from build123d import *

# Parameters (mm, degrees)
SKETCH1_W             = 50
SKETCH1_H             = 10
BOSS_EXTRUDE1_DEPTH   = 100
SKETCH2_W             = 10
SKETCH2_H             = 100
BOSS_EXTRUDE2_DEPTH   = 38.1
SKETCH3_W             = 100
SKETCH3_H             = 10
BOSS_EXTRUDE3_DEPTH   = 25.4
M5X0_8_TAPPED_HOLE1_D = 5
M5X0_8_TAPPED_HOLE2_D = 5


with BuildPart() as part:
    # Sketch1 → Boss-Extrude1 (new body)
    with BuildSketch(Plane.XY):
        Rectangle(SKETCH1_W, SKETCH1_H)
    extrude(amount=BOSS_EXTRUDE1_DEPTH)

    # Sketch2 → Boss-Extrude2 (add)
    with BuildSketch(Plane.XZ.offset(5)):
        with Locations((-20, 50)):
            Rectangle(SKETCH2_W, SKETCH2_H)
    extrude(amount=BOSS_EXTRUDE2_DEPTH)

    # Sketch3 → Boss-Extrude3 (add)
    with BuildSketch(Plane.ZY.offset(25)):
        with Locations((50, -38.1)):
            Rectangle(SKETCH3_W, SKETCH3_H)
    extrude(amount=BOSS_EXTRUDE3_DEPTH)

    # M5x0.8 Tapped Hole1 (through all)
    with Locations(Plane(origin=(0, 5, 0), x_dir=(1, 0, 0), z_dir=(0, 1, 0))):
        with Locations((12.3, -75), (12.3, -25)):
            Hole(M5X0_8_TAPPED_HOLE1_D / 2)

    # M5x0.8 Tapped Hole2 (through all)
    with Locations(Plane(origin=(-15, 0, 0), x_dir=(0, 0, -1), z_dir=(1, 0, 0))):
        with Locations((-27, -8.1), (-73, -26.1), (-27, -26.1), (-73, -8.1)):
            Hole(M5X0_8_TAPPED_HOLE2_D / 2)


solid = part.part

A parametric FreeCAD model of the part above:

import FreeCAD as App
import Part
import Sketcher

doc = App.newDocument("Part")
body = doc.addObject("PartDesign::Body", "Body")

# Sketch on XY plane
sketch1 = body.newObject("Sketcher::SketchObject", "Sketch")
sketch1.AttachmentSupport = (doc.getObject("XY_Plane"), [""])
sketch1.MapMode = "FlatFace"
sketch1.addGeometry(Part.LineSegment(App.Vector(-25, 5, 0), App.Vector(-25, -5, 0)), False)
sketch1.addGeometry(Part.LineSegment(App.Vector(-25, -5, 0), App.Vector(25, -5, 0)), False)
sketch1.addGeometry(Part.LineSegment(App.Vector(25, -5, 0), App.Vector(25, 5, 0)), False)
sketch1.addGeometry(Part.LineSegment(App.Vector(25, 5, 0), App.Vector(-25, 5, 0)), False)
sketch1.addConstraint(Sketcher.Constraint("Coincident", 0, 2, 1, 1))
sketch1.addConstraint(Sketcher.Constraint("Coincident", 1, 2, 2, 1))
sketch1.addConstraint(Sketcher.Constraint("Coincident", 2, 2, 3, 1))
sketch1.addConstraint(Sketcher.Constraint("Coincident", 3, 2, 0, 1))
sketch1.addConstraint(Sketcher.Constraint("Vertical", 0))
sketch1.addConstraint(Sketcher.Constraint("Horizontal", 1))
sketch1.addConstraint(Sketcher.Constraint("Vertical", 2))
sketch1.addConstraint(Sketcher.Constraint("Horizontal", 3))
sketch1.addConstraint(Sketcher.Constraint("Symmetric", 0, 2, 2, 2, -1, 1))
sketch1.addConstraint(Sketcher.Constraint("DistanceX", 1, 1, 1, 2, 50.0))
sketch1.addConstraint(Sketcher.Constraint("DistanceY", 0, 2, 0, 1, 10.0))
pad1 = body.newObject("PartDesign::Pad", "Pad")
pad1.Profile = sketch1
pad1.Length = 100

# Sketch on XZ plane
sketch2 = body.newObject("Sketcher::SketchObject", "Sketch001")
sketch2.AttachmentSupport = (doc.getObject("XZ_Plane"), [""])
sketch2.MapMode = "FlatFace"
sketch2.AttachmentOffset = App.Placement(App.Vector(0, 0, 5), App.Rotation())
sketch2.addGeometry(Part.LineSegment(App.Vector(-25, 100, 0), App.Vector(-25, 0, 0)), False)
sketch2.addGeometry(Part.LineSegment(App.Vector(-25, 0, 0), App.Vector(-15, 0, 0)), False)
sketch2.addGeometry(Part.LineSegment(App.Vector(-15, 0, 0), App.Vector(-15, 100, 0)), False)
sketch2.addGeometry(Part.LineSegment(App.Vector(-15, 100, 0), App.Vector(-25, 100, 0)), False)
sketch2.addConstraint(Sketcher.Constraint("Coincident", 0, 2, 1, 1))
sketch2.addConstraint(Sketcher.Constraint("Coincident", 1, 2, 2, 1))
sketch2.addConstraint(Sketcher.Constraint("Coincident", 2, 2, 3, 1))
sketch2.addConstraint(Sketcher.Constraint("Coincident", 3, 2, 0, 1))
sketch2.addConstraint(Sketcher.Constraint("Vertical", 0))
sketch2.addConstraint(Sketcher.Constraint("Horizontal", 1))
sketch2.addConstraint(Sketcher.Constraint("Vertical", 2))
sketch2.addConstraint(Sketcher.Constraint("Horizontal", 3))
sketch2.addConstraint(Sketcher.Constraint("PointOnObject", 0, 2, -1))
sketch2.addConstraint(Sketcher.Constraint("DistanceX", 1, 1, 1, 2, 10.0))
sketch2.addConstraint(Sketcher.Constraint("DistanceY", 0, 2, 0, 1, 100.0))
sketch2.addConstraint(Sketcher.Constraint("DistanceX", 0, 2, -1, 1, 25.0))
pad2 = body.newObject("PartDesign::Pad", "Pad001")
pad2.Profile = sketch2
pad2.Length = 38.1

# Sketch on YZ plane
sketch3 = body.newObject("Sketcher::SketchObject", "Sketch002")
sketch3.AttachmentSupport = (doc.getObject("YZ_Plane"), [""])
sketch3.MapMode = "FlatFace"
sketch3.AttachmentOffset = App.Placement(App.Vector(0, 0, -25), App.Rotation())
sketch3.addGeometry(Part.LineSegment(App.Vector(-33, 0, 0), App.Vector(-43, 0, 0)), False)
sketch3.addGeometry(Part.LineSegment(App.Vector(-43, 0, 0), App.Vector(-43, 100, 0)), False)
sketch3.addGeometry(Part.LineSegment(App.Vector(-43, 100, 0), App.Vector(-33, 100, 0)), False)
sketch3.addGeometry(Part.LineSegment(App.Vector(-33, 100, 0), App.Vector(-33, 0, 0)), False)
sketch3.addConstraint(Sketcher.Constraint("Coincident", 0, 2, 1, 1))
sketch3.addConstraint(Sketcher.Constraint("Coincident", 1, 2, 2, 1))
sketch3.addConstraint(Sketcher.Constraint("Coincident", 2, 2, 3, 1))
sketch3.addConstraint(Sketcher.Constraint("Coincident", 3, 2, 0, 1))
sketch3.addConstraint(Sketcher.Constraint("Horizontal", 0))
sketch3.addConstraint(Sketcher.Constraint("Vertical", 1))
sketch3.addConstraint(Sketcher.Constraint("Horizontal", 2))
sketch3.addConstraint(Sketcher.Constraint("Vertical", 3))
sketch3.addConstraint(Sketcher.Constraint("PointOnObject", 0, 2, -1))
sketch3.addConstraint(Sketcher.Constraint("DistanceX", 0, 2, 0, 1, 10.0))
sketch3.addConstraint(Sketcher.Constraint("DistanceY", 1, 1, 1, 2, 100.0))
sketch3.addConstraint(Sketcher.Constraint("DistanceX", 0, 2, -1, 1, 43.1))
pad3 = body.newObject("PartDesign::Pad", "Pad002")
pad3.Profile = sketch3
pad3.Length = 25.4
pad3.Reversed = True

# Sketch on XZ plane
sketch4 = body.newObject("Sketcher::SketchObject", "Sketch003")
sketch4.AttachmentSupport = (doc.getObject("XZ_Plane"), [""])
sketch4.MapMode = "FlatFace"
sketch4.AttachmentOffset = App.Placement(App.Vector(0, 0, -5), App.Rotation())
sketch4.addGeometry(Part.Circle(App.Vector(12.3, 75, 0), App.Vector(0, 0, 1), 2.5), False)
sketch4.addGeometry(Part.Circle(App.Vector(12.3, 25, 0), App.Vector(0, 0, 1), 2.5), False)
sketch4.addConstraint(Sketcher.Constraint("Equal", 0, 1))
sketch4.addConstraint(Sketcher.Constraint("Vertical", 0, 3, 1, 3))
sketch4.addConstraint(Sketcher.Constraint("Diameter", 0, 5.0))
sketch4.addConstraint(Sketcher.Constraint("DistanceY", -1, 1, 0, 3, 75.0))
sketch4.addConstraint(Sketcher.Constraint("DistanceY", -1, 1, 1, 3, 25.0))
sketch4.addConstraint(Sketcher.Constraint("DistanceX", -1, 1, 0, 3, 12.3))
doc.recompute()
hole = body.newObject("PartDesign::Hole", "Hole")
hole.Profile = sketch4
hole.ThreadType = "None"
hole.Diameter = 5
hole.DepthType = "ThroughAll"
hole.Reversed = True

# Sketch on YZ plane
sketch5 = body.newObject("Sketcher::SketchObject", "Sketch004")
sketch5.AttachmentSupport = (doc.getObject("YZ_Plane"), [""])
sketch5.MapMode = "FlatFace"
sketch5.AttachmentOffset = App.Placement(App.Vector(0, 0, -15), App.Rotation())
sketch5.addGeometry(Part.Circle(App.Vector(-8.1, 27, 0), App.Vector(0, 0, 1), 2.5), False)
sketch5.addGeometry(Part.Circle(App.Vector(-26.1, 73, 0), App.Vector(0, 0, 1), 2.5), False)
sketch5.addGeometry(Part.Circle(App.Vector(-26.1, 27, 0), App.Vector(0, 0, 1), 2.5), False)
sketch5.addGeometry(Part.Circle(App.Vector(-8.1, 73, 0), App.Vector(0, 0, 1), 2.5), False)
sketch5.addConstraint(Sketcher.Constraint("Equal", 0, 1))
sketch5.addConstraint(Sketcher.Constraint("Equal", 1, 2))
sketch5.addConstraint(Sketcher.Constraint("Equal", 2, 3))
sketch5.addConstraint(Sketcher.Constraint("Horizontal", 0, 3, 2, 3))
sketch5.addConstraint(Sketcher.Constraint("Horizontal", 1, 3, 3, 3))
sketch5.addConstraint(Sketcher.Constraint("Vertical", 1, 3, 2, 3))
sketch5.addConstraint(Sketcher.Constraint("Vertical", 0, 3, 3, 3))
sketch5.addConstraint(Sketcher.Constraint("Diameter", 0, 5.0))
sketch5.addConstraint(Sketcher.Constraint("DistanceY", -1, 1, 0, 3, 27.0))
sketch5.addConstraint(Sketcher.Constraint("DistanceY", -1, 1, 1, 3, 73.0))
sketch5.addConstraint(Sketcher.Constraint("DistanceX", 1, 3, 0, 3, 18.0))
sketch5.addConstraint(Sketcher.Constraint("DistanceX", 0, 3, -1, 1, 8.1))
doc.recompute()
hole2 = body.newObject("PartDesign::Hole", "Hole001")
hole2.Profile = sketch5
hole2.ThreadType = "None"
hole2.Diameter = 5
hole2.DepthType = "ThroughAll"

doc.recompute()
